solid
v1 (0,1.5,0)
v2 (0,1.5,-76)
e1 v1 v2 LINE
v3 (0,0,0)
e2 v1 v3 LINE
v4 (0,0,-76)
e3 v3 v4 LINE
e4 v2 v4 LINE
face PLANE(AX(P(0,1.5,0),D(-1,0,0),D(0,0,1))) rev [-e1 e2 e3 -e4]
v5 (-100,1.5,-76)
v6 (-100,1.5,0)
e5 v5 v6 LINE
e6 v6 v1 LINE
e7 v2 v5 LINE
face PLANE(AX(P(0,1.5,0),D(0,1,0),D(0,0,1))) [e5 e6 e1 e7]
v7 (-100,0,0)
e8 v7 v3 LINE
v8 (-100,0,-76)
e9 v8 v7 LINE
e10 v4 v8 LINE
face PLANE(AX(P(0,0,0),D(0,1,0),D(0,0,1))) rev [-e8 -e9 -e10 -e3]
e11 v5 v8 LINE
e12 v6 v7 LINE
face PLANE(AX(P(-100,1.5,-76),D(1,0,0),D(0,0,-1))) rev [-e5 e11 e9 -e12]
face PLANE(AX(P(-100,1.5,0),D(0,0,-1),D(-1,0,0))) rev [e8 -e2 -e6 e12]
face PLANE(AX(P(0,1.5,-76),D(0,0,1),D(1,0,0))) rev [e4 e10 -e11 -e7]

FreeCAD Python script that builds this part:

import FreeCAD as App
import Part
import Sketcher

V = App.Vector


def add_polygon(sketch, points):
    """Adds a closed chain of lines whose ends are joined by coincident constraints."""
    first, n = sketch.GeometryCount, len(points)
    for a, b in zip(points, points[1:] + points[:1]):
        sketch.addGeometry(Part.LineSegment(App.Vector(*a, 0), App.Vector(*b, 0)), False)
    for i in range(n):
        sketch.addConstraint(Sketcher.Constraint("Coincident", first + i, 2, first + (i + 1) % n, 1))

doc = App.newDocument("Part")
body = doc.addObject("PartDesign::Body", "Body")

# Sketch on XZ plane
sketch1 = body.newObject("Sketcher::SketchObject", "Sketch")
sketch1.AttachmentSupport = (doc.getObject("XZ_Plane"), [""])
sketch1.MapMode = "FlatFace"
add_polygon(sketch1, [(-100, -76), (-100, 0), (0, 0), (0, -76)])  # lines 0-3
sketch1.addConstraint([
    Sketcher.Constraint("Vertical", 0),
    Sketcher.Constraint("Horizontal", 1),
    Sketcher.Constraint("Vertical", 2),
    Sketcher.Constraint("Horizontal", 3),
    Sketcher.Constraint("Coincident", 1, 2, -1, 1),
    Sketcher.Constraint("DistanceX", 1, 1, 1, 2, 100.0),
    Sketcher.Constraint("DistanceY", 0, 1, 0, 2, 76.0),
])
pad1 = body.newObject("PartDesign::Pad", "Pad")
pad1.Profile = sketch1
pad1.Length = 1.5
pad1.Reversed = True

doc.recompute()
